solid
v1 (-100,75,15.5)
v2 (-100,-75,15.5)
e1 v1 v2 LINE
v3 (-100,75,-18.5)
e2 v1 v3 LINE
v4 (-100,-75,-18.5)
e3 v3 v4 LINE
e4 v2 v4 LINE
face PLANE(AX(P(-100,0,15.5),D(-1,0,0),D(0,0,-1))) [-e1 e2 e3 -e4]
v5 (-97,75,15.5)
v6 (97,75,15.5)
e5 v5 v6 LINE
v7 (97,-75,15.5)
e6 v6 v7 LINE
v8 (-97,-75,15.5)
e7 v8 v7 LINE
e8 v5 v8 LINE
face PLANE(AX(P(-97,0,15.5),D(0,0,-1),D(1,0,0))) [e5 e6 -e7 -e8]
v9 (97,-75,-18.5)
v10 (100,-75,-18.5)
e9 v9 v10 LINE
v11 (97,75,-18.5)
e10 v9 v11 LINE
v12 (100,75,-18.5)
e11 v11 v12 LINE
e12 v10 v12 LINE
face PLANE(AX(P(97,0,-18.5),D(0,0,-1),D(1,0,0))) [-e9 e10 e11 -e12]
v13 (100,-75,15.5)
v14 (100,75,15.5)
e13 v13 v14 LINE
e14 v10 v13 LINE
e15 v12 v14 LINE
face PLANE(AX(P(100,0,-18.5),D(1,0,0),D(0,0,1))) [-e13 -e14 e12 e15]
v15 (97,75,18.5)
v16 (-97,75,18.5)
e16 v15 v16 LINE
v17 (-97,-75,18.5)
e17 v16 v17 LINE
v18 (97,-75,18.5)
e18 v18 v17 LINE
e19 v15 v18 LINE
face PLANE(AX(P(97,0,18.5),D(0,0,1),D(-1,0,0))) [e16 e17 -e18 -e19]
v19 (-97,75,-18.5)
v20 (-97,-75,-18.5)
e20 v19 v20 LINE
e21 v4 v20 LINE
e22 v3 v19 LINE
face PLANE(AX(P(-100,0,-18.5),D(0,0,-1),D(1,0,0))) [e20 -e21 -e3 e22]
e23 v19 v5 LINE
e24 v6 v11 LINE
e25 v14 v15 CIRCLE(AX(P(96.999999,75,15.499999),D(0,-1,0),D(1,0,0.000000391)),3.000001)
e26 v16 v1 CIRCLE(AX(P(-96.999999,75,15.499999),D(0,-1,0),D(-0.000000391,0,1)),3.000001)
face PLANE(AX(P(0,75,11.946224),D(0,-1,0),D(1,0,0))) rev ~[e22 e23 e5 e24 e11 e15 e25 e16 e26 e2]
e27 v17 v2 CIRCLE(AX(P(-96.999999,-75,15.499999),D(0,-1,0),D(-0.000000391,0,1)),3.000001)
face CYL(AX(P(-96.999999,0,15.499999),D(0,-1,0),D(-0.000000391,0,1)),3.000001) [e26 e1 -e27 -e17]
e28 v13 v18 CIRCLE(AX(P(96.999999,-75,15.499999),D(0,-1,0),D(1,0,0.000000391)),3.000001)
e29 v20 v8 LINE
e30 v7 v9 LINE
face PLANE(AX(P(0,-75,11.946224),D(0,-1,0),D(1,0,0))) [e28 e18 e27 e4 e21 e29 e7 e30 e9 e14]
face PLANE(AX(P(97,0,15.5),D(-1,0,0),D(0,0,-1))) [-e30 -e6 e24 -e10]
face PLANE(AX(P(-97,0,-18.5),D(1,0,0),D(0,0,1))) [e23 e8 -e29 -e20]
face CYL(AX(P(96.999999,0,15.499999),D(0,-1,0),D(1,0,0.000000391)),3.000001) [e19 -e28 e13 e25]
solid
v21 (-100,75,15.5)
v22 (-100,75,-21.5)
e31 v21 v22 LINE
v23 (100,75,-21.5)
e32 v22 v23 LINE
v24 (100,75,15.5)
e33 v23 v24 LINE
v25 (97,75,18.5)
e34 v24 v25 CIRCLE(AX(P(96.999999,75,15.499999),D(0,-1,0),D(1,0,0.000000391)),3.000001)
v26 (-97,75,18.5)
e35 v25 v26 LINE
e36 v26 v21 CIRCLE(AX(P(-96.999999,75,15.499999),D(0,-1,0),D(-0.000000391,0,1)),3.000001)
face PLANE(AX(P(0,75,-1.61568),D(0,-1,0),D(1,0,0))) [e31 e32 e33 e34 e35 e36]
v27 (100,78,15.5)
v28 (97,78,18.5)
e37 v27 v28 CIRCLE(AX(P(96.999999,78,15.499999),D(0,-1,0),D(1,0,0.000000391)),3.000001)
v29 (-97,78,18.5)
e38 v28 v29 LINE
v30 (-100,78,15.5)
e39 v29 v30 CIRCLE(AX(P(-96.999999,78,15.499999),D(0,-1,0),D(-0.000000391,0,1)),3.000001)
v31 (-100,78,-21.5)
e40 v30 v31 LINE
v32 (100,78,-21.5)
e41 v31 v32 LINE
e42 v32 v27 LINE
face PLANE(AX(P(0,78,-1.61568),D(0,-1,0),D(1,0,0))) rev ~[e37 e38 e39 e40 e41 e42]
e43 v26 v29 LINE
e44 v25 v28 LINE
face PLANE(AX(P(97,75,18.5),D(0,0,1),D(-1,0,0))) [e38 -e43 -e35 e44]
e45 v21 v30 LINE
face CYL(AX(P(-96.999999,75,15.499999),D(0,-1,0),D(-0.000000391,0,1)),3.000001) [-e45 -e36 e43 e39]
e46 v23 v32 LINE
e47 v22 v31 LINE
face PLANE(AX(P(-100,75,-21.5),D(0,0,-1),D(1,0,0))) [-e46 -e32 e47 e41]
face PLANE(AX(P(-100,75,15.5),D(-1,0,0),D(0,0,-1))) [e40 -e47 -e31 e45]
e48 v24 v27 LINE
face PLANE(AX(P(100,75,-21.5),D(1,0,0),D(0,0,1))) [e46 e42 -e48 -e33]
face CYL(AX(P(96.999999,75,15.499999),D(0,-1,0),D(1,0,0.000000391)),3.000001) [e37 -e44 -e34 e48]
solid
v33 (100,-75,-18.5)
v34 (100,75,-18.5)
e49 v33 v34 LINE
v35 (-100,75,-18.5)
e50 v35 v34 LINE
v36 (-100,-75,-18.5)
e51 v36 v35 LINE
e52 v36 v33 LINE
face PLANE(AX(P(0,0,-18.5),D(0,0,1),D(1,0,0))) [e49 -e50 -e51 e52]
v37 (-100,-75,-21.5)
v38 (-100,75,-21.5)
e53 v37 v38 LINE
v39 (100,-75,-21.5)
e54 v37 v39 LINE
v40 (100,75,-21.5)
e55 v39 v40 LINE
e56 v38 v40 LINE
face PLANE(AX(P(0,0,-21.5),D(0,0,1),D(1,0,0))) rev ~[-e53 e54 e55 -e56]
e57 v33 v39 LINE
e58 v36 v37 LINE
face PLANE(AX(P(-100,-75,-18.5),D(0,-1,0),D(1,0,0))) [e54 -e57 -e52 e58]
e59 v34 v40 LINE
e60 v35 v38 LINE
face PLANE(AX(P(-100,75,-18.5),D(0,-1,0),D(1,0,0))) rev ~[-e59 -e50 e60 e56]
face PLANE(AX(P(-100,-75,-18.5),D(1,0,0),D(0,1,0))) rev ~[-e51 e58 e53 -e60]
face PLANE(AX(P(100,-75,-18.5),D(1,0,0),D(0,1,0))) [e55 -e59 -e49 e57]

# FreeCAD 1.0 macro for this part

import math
import FreeCAD as App
import Part
import Sketcher
from FreeCAD import Vector

doc = App.newDocument("Part")
body = doc.addObject("PartDesign::Body", "Body")

sketch1 = body.newObject("Sketcher::SketchObject", "Sketch")
sketch1.AttachmentSupport = (doc.getObject("XZ_Plane"), [""])
sketch1.MapMode = "FlatFace"
sketch1.addGeometry(Part.ArcOfCircle(Part.Circle(Vector(97, 15.5, 0), Vector(0, 0, 1), 3), math.radians(0), math.radians(90)), False)
sketch1.addGeometry(Part.LineSegment(Vector(97, 18.5, 0), Vector(-97, 18.5, 0)), False)
sketch1.addGeometry(Part.ArcOfCircle(Part.Circle(Vector(-97, 15.5, 0), Vector(0, 0, 1), 3), math.radians(90), math.radians(180)), False)
sketch1.addGeometry(Part.LineSegment(Vector(-100, 15.5, 0), Vector(-100, -18.5, 0)), False)
sketch1.addGeometry(Part.LineSegment(Vector(-100, -18.5, 0), Vector(-97, -18.5, 0)), False)
sketch1.addGeometry(Part.LineSegment(Vector(-97, -18.5, 0), Vector(-97, 15.5, 0)), False)
sketch1.addGeometry(Part.LineSegment(Vector(-97, 15.5, 0), Vector(97, 15.5, 0)), False)
sketch1.addGeometry(Part.LineSegment(Vector(97, 15.5, 0), Vector(97, -18.5, 0)), False)
sketch1.addGeometry(Part.LineSegment(Vector(97, -18.5, 0), Vector(100, -18.5, 0)), False)
sketch1.addGeometry(Part.LineSegment(Vector(100, -18.5, 0), Vector(100, 15.5, 0)), False)
sketch1.addConstraint(Sketcher.Constraint("Tangent", 0, 2, 1, 1))
sketch1.addConstraint(Sketcher.Constraint("Tangent", 1, 2, 2, 1))
sketch1.addConstraint(Sketcher.Constraint("Tangent", 2, 2, 3, 1))
sketch1.addConstraint(Sketcher.Constraint("Coincident", 3, 2, 4, 1))
sketch1.addConstraint(Sketcher.Constraint("Coincident", 4, 2, 5, 1))
sketch1.addConstraint(Sketcher.Constraint("Coincident", 5, 2, 6, 1))
sketch1.addConstraint(Sketcher.Constraint("Coincident", 6, 2, 7, 1))
sketch1.addConstraint(Sketcher.Constraint("Coincident", 7, 2, 8, 1))
sketch1.addConstraint(Sketcher.Constraint("Coincident", 8, 2, 9, 1))
sketch1.addConstraint(Sketcher.Constraint("Tangent", 9, 2, 0, 1))
sketch1.addConstraint(Sketcher.Constraint("Horizontal", 1))
sketch1.addConstraint(Sketcher.Constraint("Vertical", 3))
sketch1.addConstraint(Sketcher.Constraint("Horizontal", 4))
sketch1.addConstraint(Sketcher.Constraint("Vertical", 5))
sketch1.addConstraint(Sketcher.Constraint("Horizontal", 6))
sketch1.addConstraint(Sketcher.Constraint("Vertical", 7))
sketch1.addConstraint(Sketcher.Constraint("Horizontal", 8))
sketch1.addConstraint(Sketcher.Constraint("Vertical", 9))
sketch1.addConstraint(Sketcher.Constraint("Coincident", 5, 2, 2, 3))
sketch1.addConstraint(Sketcher.Constraint("Coincident", 6, 2, 0, 3))
sketch1.addConstraint(Sketcher.Constraint("Symmetric", 0, 2, 4, 2, -1, 1))
sketch1.addConstraint(Sketcher.Constraint("Horizontal", 4, 2, 7, 2))
sketch1.addConstraint(Sketcher.Constraint("Radius", 0, 3.000001))
sketch1.addConstraint(Sketcher.Constraint("DistanceX", 1, 2, 1, 1, 194.0))
sketch1.addConstraint(Sketcher.Constraint("DistanceY", 3, 2, 3, 1, 34.0))
pad1 = body.newObject("PartDesign::Pad", "Pad")
pad1.Profile = sketch1
pad1.Type = "TwoLengths"
pad1.Length = 75
pad1.Length2 = 75
body2 = doc.addObject("PartDesign::Body", "Body001")

sketch2 = body2.newObject("Sketcher::SketchObject", "Sketch001")
sketch2.AttachmentSupport = (doc.getObject("XY_Plane001"), [""])
sketch2.MapMode = "FlatFace"
sketch2.AttachmentOffset = App.Placement(Vector(0, 0, -18.5), App.Rotation())
sketch2.addGeometry(Part.LineSegment(Vector(-100, 75, 0), Vector(-100, -75, 0)), False)
sketch2.addGeometry(Part.LineSegment(Vector(-100, -75, 0), Vector(100, -75, 0)), False)
sketch2.addGeometry(Part.LineSegment(Vector(100, -75, 0), Vector(100, 75, 0)), False)
sketch2.addGeometry(Part.LineSegment(Vector(100, 75, 0), Vector(-100, 75, 0)), False)
sketch2.addConstraint(Sketcher.Constraint("Coincident", 0, 2, 1, 1))
sketch2.addConstraint(Sketcher.Constraint("Coincident", 1, 2, 2, 1))
sketch2.addConstraint(Sketcher.Constraint("Coincident", 2, 2, 3, 1))
sketch2.addConstraint(Sketcher.Constraint("Coincident", 3, 2, 0, 1))
sketch2.addConstraint(Sketcher.Constraint("Vertical", 0))
sketch2.addConstraint(Sketcher.Constraint("Horizontal", 1))
sketch2.addConstraint(Sketcher.Constraint("Vertical", 2))
sketch2.addConstraint(Sketcher.Constraint("Horizontal", 3))
sketch2.addConstraint(Sketcher.Constraint("Symmetric", 0, 2, 2, 2, -1, 1))
sketch2.addConstraint(Sketcher.Constraint("DistanceX", 1, 1, 1, 2, 200.0))
sketch2.addConstraint(Sketcher.Constraint("DistanceY", 0, 2, 0, 1, 150.0))
pad2 = body2.newObject("PartDesign::Pad", "Pad001")
pad2.Profile = sketch2
pad2.Length = 3
pad2.Reversed = True
body3 = doc.addObject("PartDesign::Body", "Body002")

sketch3 = body3.newObject("Sketcher::SketchObject", "Sketch002")
sketch3.AttachmentSupport = (doc.getObject("XZ_Plane002"), [""])
sketch3.MapMode = "FlatFace"
sketch3.AttachmentOffset = App.Placement(Vector(0, 0, -75), App.Rotation())
sketch3.addGeometry(Part.ArcOfCircle(Part.Circle(Vector(97, 15.5, 0), Vector(0, 0, 1), 3), math.radians(0), math.radians(90)), False)
sketch3.addGeometry(Part.LineSegment(Vector(97, 18.5, 0), Vector(-97, 18.5, 0)), False)
sketch3.addGeometry(Part.ArcOfCircle(Part.Circle(Vector(-97, 15.5, 0), Vector(0, 0, 1), 3), math.radians(90), math.radians(180)), False)
sketch3.addGeometry(Part.LineSegment(Vector(-100, 15.5, 0), Vector(-100, -21.5, 0)), False)
sketch3.addGeometry(Part.LineSegment(Vector(-100, -21.5, 0), Vector(100, -21.5, 0)), False)
sketch3.addGeometry(Part.LineSegment(Vector(100, -21.5, 0), Vector(100, 15.5, 0)), False)
sketch3.addConstraint(Sketcher.Constraint("Tangent", 0, 2, 1, 1))
sketch3.addConstraint(Sketcher.Constraint("Tangent", 1, 2, 2, 1))
sketch3.addConstraint(Sketcher.Constraint("Tangent", 2, 2, 3, 1))
sketch3.addConstraint(Sketcher.Constraint("Coincident", 3, 2, 4, 1))
sketch3.addConstraint(Sketcher.Constraint("Coincident", 4, 2, 5, 1))
sketch3.addConstraint(Sketcher.Constraint("Tangent", 5, 2, 0, 1))
sketch3.addConstraint(Sketcher.Constraint("Horizontal", 1))
sketch3.addConstraint(Sketcher.Constraint("Vertical", 3))
sketch3.addConstraint(Sketcher.Constraint("Horizontal", 4))
sketch3.addConstraint(Sketcher.Constraint("Vertical", 5))
sketch3.addConstraint(Sketcher.Constraint("Equal", 0, 2))
sketch3.addConstraint(Sketcher.Constraint("Radius", 0, 3.000001))
sketch3.addConstraint(Sketcher.Constraint("DistanceX", 1, 2, 1, 1, 194.0))
sketch3.addConstraint(Sketcher.Constraint("DistanceY", 3, 2, 3, 1, 37.0))
sketch3.addConstraint(Sketcher.Constraint("DistanceX", -1, 1, 0, 3, 96.999999))
sketch3.addConstraint(Sketcher.Constraint("DistanceY", -1, 1, 0, 3, 15.499999))
pad3 = body3.newObject("PartDesign::Pad", "Pad002")
pad3.Profile = sketch3
pad3.Length = 3
pad3.Reversed = True

doc.recompute()
